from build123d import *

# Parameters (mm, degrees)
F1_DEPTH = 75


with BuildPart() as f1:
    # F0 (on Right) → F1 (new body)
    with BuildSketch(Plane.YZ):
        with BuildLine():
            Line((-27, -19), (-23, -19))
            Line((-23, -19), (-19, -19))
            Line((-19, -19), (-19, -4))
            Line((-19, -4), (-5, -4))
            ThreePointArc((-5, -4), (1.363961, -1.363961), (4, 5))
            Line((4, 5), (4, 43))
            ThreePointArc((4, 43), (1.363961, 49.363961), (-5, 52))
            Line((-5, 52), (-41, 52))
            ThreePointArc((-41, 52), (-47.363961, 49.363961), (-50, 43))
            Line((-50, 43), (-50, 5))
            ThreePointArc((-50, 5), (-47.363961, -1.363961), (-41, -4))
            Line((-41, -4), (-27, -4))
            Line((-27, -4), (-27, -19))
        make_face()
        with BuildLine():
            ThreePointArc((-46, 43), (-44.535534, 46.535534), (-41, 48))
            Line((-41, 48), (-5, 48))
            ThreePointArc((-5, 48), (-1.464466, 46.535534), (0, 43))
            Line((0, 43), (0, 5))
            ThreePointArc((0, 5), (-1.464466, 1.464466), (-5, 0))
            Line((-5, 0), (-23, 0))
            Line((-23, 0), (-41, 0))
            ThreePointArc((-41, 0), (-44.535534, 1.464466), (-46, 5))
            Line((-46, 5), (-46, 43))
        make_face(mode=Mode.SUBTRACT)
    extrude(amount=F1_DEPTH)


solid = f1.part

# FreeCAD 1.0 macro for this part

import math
import FreeCAD as App
import Part
import Sketcher
from FreeCAD import Vector

doc = App.newDocument("Part")
body = doc.addObject("PartDesign::Body", "Body")

sketch1 = body.newObject("Sketcher::SketchObject", "Sketch")
sketch1.AttachmentSupport = (doc.getObject("YZ_Plane"), [""])
sketch1.MapMode = "FlatFace"
sketch1.addGeometry(Part.LineSegment(Vector(-27, -19, 0), Vector(-19, -19, 0)), False)
sketch1.addGeometry(Part.LineSegment(Vector(-19, -19, 0), Vector(-19, -4, 0)), False)
sketch1.addGeometry(Part.LineSegment(Vector(-19, -4, 0), Vector(-5, -4, 0)), False)
sketch1.addGeometry(Part.ArcOfCircle(Part.Circle(Vector(-5, 5, 0), Vector(0, 0, 1), 9), math.radians(-90), math.radians(0)), False)
sketch1.addGeometry(Part.LineSegment(Vector(4, 5, 0), Vector(4, 43, 0)), False)
sketch1.addGeometry(Part.ArcOfCircle(Part.Circle(Vector(-5, 43, 0), Vector(0, 0, 1), 9), math.radians(0), math.radians(90)), False)
sketch1.addGeometry(Part.LineSegment(Vector(-5, 52, 0), Vector(-41, 52, 0)), False)
sketch1.addGeometry(Part.ArcOfCircle(Part.Circle(Vector(-41, 43, 0), Vector(0, 0, 1), 9), math.radians(90), math.radians(180)), False)
sketch1.addGeometry(Part.LineSegment(Vector(-50, 43, 0), Vector(-50, 5, 0)), False)
sketch1.addGeometry(Part.ArcOfCircle(Part.Circle(Vector(-41, 5, 0), Vector(0, 0, 1), 9), math.radians(-180), math.radians(-90)), False)
sketch1.addGeometry(Part.LineSegment(Vector(-41, -4, 0), Vector(-27, -4, 0)), False)
sketch1.addGeometry(Part.LineSegment(Vector(-27, -4, 0), Vector(-27, -19, 0)), False)
sketch1.addGeometry(Part.LineSegment(Vector(-46, 5, 0), Vector(-46, 43, 0)), False)
sketch1.addGeometry(Part.ArcOfCircle(Part.Circle(Vector(-41, 43, 0), Vector(0, 0, 1), 5), math.radians(90), math.radians(180)), False)
sketch1.addGeometry(Part.LineSegment(Vector(-41, 48, 0), Vector(-5, 48, 0)), False)
sketch1.addGeometry(Part.ArcOfCircle(Part.Circle(Vector(-5, 43, 0), Vector(0, 0, 1), 5), math.radians(0), math.radians(90)), False)
sketch1.addGeometry(Part.LineSegment(Vector(0, 43, 0), Vector(0, 5, 0)), False)
sketch1.addGeometry(Part.ArcOfCircle(Part.Circle(Vector(-5, 5, 0), Vector(0, 0, 1), 5), math.radians(-90), math.radians(0)), False)
sketch1.addGeometry(Part.LineSegment(Vector(-5, 0, 0), Vector(-41, 0, 0)), False)
sketch1.addGeometry(Part.ArcOfCircle(Part.Circle(Vector(-41, 5, 0), Vector(0, 0, 1), 5), math.radians(180), math.radians(270)), False)
sketch1.addConstraint(Sketcher.Constraint("Coincident", 0, 2, 1, 1))
sketch1.addConstraint(Sketcher.Constraint("Coincident", 1, 2, 2, 1))
sketch1.addConstraint(Sketcher.Constraint("Tangent", 2, 2, 3, 1))
sketch1.addConstraint(Sketcher.Constraint("Tangent", 3, 2, 4, 1))
sketch1.addConstraint(Sketcher.Constraint("Tangent", 4, 2, 5, 1))
sketch1.addConstraint(Sketcher.Constraint("Tangent", 5, 2, 6, 1))
sketch1.addConstraint(Sketcher.Constraint("Tangent", 6, 2, 7, 1))
sketch1.addConstraint(Sketcher.Constraint("Tangent", 7, 2, 8, 1))
sketch1.addConstraint(Sketcher.Constraint("Tangent", 8, 2, 9, 1))
sketch1.addConstraint(Sketcher.Constraint("Tangent", 9, 2, 10, 1))
sketch1.addConstraint(Sketcher.Constraint("Coincident", 10, 2, 11, 1))
sketch1.addConstraint(Sketcher.Constraint("Coincident", 11, 2, 0, 1))
sketch1.addConstraint(Sketcher.Constraint("Tangent", 12, 2, 13, 2))
sketch1.addConstraint(Sketcher.Constraint("Tangent", 13, 1, 14, 1))
sketch1.addConstraint(Sketcher.Constraint("Tangent", 14, 2, 15, 2))
sketch1.addConstraint(Sketcher.Constraint("Tangent", 15, 1, 16, 1))
sketch1.addConstraint(Sketcher.Constraint("Tangent", 16, 2, 17, 2))
sketch1.addConstraint(Sketcher.Constraint("Tangent", 17, 1, 18, 1))
sketch1.addConstraint(Sketcher.Constraint("Tangent", 18, 2, 19, 2))
sketch1.addConstraint(Sketcher.Constraint("Tangent", 19, 1, 12, 1))
sketch1.addConstraint(Sketcher.Constraint("Horizontal", 0))
sketch1.addConstraint(Sketcher.Constraint("Vertical", 1))
sketch1.addConstraint(Sketcher.Constraint("Horizontal", 2))
sketch1.addConstraint(Sketcher.Constraint("Vertical", 4))
sketch1.addConstraint(Sketcher.Constraint("Horizontal", 6))
sketch1.addConstraint(Sketcher.Constraint("Vertical", 8))
sketch1.addConstraint(Sketcher.Constraint("Horizontal", 10))
sketch1.addConstraint(Sketcher.Constraint("Vertical", 11))
sketch1.addConstraint(Sketcher.Constraint("Vertical", 12))
sketch1.addConstraint(Sketcher.Constraint("Horizontal", 14))
sketch1.addConstraint(Sketcher.Constraint("Vertical", 16))
sketch1.addConstraint(Sketcher.Constraint("Horizontal", 18))
sketch1.addConstraint(Sketcher.Constraint("Coincident", 13, 3, 7, 3))
sketch1.addConstraint(Sketcher.Constraint("Coincident", 15, 3, 5, 3))
sketch1.addConstraint(Sketcher.Constraint("Coincident", 17, 3, 3, 3))
sketch1.addConstraint(Sketcher.Constraint("Coincident", 19, 3, 9, 3))
sketch1.addConstraint(Sketcher.Constraint("Equal", 3, 5))
sketch1.addConstraint(Sketcher.Constraint("Equal", 5, 7))
sketch1.addConstraint(Sketcher.Constraint("Equal", 7, 9))
sketch1.addConstraint(Sketcher.Constraint("PointOnObject", 15, 1, -2))
sketch1.addConstraint(Sketcher.Constraint("PointOnObject", 17, 1, -1))
sketch1.addConstraint(Sketcher.Constraint("Equal", 2, 10))
sketch1.addConstraint(Sketcher.Constraint("Radius", 3, 9.0))
sketch1.addConstraint(Sketcher.Constraint("Radius", 13, 5.0))
sketch1.addConstraint(Sketcher.Constraint("DistanceX", 0, 1, 0, 2, 8.0))
sketch1.addConstraint(Sketcher.Constraint("DistanceX", 2, 1, 2, 2, 14.0))
sketch1.addConstraint(Sketcher.Constraint("DistanceY", 1, 1, 1, 2, 15.0))
sketch1.addConstraint(Sketcher.Constraint("DistanceY", 4, 1, 4, 2, 38.0))
pad1 = body.newObject("PartDesign::Pad", "Pad")
pad1.Profile = sketch1
pad1.Length = 75

doc.recompute()
